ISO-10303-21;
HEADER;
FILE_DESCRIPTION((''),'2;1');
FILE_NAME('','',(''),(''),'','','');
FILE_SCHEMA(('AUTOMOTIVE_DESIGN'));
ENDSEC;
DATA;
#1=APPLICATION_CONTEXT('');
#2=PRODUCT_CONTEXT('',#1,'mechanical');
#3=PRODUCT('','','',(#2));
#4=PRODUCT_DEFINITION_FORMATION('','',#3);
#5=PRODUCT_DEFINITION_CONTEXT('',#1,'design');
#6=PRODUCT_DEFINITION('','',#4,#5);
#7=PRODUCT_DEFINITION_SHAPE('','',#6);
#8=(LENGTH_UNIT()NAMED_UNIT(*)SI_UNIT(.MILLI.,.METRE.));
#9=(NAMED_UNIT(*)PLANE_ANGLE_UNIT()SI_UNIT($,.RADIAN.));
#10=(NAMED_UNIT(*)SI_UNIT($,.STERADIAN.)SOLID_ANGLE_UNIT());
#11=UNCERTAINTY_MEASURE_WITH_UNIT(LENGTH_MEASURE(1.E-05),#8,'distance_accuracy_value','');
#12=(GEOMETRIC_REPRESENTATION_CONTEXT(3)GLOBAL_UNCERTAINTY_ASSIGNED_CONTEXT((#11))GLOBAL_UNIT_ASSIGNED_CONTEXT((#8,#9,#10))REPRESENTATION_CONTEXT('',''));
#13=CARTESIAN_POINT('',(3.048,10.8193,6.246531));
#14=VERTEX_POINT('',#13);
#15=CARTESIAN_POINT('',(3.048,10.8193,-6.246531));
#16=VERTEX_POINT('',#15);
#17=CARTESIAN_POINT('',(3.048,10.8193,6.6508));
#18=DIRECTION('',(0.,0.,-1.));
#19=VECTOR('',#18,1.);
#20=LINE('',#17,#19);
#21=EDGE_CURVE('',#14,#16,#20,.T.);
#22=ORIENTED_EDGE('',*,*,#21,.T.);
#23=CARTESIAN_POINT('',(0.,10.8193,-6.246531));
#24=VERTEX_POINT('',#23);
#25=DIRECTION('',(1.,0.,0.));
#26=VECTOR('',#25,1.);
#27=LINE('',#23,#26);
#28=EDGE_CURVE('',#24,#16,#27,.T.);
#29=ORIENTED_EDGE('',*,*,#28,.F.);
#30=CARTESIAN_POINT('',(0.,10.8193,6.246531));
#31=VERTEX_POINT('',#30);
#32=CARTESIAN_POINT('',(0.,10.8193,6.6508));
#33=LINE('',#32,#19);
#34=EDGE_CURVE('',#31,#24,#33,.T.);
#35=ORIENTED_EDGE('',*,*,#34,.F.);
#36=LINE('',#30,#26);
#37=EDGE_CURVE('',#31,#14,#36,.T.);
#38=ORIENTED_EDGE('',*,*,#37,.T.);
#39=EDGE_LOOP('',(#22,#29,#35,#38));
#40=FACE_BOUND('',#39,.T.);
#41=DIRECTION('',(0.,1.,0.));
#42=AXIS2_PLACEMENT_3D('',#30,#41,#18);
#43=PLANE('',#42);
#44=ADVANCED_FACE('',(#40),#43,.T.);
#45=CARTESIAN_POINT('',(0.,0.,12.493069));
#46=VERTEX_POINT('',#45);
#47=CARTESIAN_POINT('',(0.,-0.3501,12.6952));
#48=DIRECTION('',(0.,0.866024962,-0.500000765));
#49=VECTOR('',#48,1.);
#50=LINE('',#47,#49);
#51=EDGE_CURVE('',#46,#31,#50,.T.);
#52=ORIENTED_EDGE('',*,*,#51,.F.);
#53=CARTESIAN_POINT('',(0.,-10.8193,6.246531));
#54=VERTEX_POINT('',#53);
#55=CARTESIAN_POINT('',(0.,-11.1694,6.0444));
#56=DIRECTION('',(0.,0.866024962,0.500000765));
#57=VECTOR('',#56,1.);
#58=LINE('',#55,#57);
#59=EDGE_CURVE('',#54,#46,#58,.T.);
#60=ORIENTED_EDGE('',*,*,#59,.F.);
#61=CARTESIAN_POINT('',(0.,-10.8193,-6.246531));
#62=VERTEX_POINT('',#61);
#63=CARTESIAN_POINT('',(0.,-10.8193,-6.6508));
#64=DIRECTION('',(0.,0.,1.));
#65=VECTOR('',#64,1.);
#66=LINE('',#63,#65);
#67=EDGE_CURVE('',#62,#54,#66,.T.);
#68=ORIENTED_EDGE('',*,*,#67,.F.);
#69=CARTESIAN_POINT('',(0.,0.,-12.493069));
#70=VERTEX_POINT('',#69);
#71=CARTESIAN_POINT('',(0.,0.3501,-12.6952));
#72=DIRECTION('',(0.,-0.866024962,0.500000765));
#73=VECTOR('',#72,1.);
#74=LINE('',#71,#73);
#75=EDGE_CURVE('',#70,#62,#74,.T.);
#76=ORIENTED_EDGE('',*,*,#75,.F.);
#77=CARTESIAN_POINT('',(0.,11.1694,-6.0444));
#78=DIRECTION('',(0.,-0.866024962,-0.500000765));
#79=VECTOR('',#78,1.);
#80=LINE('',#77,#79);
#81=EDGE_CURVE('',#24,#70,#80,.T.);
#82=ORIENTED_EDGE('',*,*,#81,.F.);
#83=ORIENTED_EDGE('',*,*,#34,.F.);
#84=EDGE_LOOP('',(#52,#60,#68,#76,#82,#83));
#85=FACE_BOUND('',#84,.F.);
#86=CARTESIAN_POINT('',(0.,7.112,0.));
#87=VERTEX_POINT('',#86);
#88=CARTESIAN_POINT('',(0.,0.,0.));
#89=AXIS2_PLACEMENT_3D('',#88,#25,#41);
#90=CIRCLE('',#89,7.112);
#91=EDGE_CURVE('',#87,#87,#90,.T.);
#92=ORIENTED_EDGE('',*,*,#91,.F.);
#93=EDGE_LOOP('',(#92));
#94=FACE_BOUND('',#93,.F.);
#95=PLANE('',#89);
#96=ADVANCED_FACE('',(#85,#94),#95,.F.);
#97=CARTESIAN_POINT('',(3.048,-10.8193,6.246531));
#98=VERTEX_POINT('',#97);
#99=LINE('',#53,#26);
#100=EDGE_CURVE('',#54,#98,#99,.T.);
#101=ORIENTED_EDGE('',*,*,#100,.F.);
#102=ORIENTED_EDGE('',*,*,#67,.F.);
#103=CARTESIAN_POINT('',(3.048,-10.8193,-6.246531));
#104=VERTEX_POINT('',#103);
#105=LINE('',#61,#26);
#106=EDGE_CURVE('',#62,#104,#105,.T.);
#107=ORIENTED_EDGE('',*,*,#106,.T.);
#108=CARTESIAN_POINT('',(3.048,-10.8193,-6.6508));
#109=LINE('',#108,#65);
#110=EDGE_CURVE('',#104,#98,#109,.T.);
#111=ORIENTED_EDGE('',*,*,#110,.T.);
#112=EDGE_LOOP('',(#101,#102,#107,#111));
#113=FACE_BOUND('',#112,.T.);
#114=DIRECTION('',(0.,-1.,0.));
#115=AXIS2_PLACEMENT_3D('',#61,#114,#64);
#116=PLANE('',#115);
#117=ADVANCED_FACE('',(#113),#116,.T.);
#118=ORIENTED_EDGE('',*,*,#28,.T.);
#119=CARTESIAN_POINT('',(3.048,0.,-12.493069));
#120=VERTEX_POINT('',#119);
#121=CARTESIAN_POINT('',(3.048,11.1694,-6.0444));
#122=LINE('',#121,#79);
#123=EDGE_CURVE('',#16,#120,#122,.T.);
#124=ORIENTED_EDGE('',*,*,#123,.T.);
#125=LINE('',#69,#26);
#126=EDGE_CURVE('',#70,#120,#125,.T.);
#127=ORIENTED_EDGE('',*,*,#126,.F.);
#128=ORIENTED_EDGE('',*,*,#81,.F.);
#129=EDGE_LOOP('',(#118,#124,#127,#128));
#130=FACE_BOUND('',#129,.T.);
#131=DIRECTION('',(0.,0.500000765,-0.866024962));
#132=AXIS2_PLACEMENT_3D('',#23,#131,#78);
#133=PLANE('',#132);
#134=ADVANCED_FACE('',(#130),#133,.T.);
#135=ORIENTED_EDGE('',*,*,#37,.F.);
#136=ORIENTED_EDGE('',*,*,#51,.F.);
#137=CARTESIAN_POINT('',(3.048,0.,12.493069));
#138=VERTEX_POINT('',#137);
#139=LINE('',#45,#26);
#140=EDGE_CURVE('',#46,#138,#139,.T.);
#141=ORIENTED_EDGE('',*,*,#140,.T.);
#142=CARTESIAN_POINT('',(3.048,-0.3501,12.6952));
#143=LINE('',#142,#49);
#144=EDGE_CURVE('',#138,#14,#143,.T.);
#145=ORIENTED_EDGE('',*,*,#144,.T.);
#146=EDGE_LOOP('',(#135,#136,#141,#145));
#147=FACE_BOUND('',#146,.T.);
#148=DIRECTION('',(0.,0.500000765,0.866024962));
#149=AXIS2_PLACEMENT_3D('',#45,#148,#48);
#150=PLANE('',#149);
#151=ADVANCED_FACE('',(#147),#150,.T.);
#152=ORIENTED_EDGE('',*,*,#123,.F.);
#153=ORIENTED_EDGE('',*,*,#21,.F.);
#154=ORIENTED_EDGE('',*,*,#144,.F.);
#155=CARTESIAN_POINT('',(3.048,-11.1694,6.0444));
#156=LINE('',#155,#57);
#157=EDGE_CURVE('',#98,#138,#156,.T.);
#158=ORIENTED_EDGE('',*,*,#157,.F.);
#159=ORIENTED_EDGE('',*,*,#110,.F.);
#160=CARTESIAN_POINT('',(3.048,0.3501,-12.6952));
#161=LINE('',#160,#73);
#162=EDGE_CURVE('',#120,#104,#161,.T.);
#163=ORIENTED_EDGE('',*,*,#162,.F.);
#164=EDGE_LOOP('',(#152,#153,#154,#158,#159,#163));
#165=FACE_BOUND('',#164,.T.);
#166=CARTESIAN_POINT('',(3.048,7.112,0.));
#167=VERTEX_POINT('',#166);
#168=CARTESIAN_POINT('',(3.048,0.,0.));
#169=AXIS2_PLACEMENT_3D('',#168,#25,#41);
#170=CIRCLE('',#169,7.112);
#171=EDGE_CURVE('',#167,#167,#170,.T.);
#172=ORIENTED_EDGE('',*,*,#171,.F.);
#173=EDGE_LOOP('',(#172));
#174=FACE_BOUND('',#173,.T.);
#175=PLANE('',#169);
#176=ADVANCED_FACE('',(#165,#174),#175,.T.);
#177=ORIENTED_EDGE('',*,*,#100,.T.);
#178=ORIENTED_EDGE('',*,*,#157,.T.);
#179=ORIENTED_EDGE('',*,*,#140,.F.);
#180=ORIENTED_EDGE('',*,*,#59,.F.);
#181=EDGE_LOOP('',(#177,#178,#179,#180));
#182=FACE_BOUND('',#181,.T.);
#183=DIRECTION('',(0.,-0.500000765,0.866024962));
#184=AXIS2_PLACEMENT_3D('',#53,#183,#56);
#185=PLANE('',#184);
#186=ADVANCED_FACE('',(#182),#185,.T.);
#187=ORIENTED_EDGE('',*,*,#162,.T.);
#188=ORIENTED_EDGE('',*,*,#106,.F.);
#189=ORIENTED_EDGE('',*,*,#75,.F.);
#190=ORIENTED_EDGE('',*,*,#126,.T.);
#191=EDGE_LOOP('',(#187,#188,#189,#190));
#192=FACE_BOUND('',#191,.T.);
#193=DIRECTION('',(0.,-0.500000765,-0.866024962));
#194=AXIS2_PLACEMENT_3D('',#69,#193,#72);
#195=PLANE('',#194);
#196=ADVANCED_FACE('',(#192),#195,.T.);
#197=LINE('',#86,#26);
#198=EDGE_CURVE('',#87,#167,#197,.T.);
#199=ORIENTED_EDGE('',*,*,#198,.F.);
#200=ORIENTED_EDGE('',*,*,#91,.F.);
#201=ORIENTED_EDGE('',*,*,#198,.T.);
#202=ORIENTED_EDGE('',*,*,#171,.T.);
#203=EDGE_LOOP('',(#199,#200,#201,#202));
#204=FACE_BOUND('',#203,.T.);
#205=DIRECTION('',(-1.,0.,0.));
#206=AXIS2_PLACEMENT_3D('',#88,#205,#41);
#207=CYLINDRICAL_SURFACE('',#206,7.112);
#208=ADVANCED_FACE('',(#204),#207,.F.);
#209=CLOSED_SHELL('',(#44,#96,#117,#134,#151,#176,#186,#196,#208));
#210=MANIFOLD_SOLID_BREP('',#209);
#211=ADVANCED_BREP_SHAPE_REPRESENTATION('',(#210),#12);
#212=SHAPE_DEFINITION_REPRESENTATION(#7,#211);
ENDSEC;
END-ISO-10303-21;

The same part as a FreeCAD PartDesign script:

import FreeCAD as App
import Part
import Sketcher
from FreeCAD import Vector
Q = App.Units.Quantity


def add_polygon(sketch, points):
    """Adds a closed chain of lines whose ends are joined by coincident constraints."""
    first, n = sketch.GeometryCount, len(points)
    for a, b in zip(points, points[1:] + points[:1]):
        sketch.addGeometry(Part.LineSegment(App.Vector(*a, 0), App.Vector(*b, 0)), False)
    for i in range(n):
        sketch.addConstraint(Sketcher.Constraint("Coincident", first + i, 2, first + (i + 1) % n, 1))

doc = App.newDocument("Part")
body = doc.addObject("PartDesign::Body", "Body")

# Sketch on YZ plane
sketch1 = doc.addObject("Sketcher::SketchObject", "Sketch")
body.addObject(sketch1)
sketch1.AttachmentSupport = (doc.YZ_Plane, [""])
sketch1.MapMode = "FlatFace"
add_polygon(sketch1, [(11, -6), (11, 6), (0, 12), (-11, 6), (-11, -6), (0, -12)])  # lines 0-5
sketch1.addGeometry(Part.Circle(Vector(0, 0, 0), Vector(0, 0, 1), 7), False)  # 6
sketch1.addConstraint([
    Sketcher.Constraint("Vertical", 0),
    Sketcher.Constraint("Vertical", 3),
    Sketcher.Constraint("Coincident", 6, 3, -1, 1),
    Sketcher.Constraint("Symmetric", 0, 2, 3, 2, -1, 1),
    Sketcher.Constraint("Symmetric", 1, 2, 4, 2, -1, 1),
    Sketcher.Constraint("PointOnObject", 1, 2, -2),
    Sketcher.Constraint("Parallel", 2, 5),
    Sketcher.Constraint("Horizontal", 0, 2, 2, 2),
    Sketcher.Constraint("Diameter", 6, Q("0.56 in")),
    Sketcher.Constraint("Angle", 1, Q("150 deg")),
    Sketcher.Constraint("DistanceY", 0, 1, 0, 2, 12.493),
    Sketcher.Constraint("DistanceY", 4, 2, 1, 2, Q("0.9837 in")),
])
pad1 = doc.addObject("PartDesign::Pad", "Pad")
body.addObject(pad1)
pad1.Profile = sketch1
pad1.Length = Q("0.12 in")

doc.recompute()
